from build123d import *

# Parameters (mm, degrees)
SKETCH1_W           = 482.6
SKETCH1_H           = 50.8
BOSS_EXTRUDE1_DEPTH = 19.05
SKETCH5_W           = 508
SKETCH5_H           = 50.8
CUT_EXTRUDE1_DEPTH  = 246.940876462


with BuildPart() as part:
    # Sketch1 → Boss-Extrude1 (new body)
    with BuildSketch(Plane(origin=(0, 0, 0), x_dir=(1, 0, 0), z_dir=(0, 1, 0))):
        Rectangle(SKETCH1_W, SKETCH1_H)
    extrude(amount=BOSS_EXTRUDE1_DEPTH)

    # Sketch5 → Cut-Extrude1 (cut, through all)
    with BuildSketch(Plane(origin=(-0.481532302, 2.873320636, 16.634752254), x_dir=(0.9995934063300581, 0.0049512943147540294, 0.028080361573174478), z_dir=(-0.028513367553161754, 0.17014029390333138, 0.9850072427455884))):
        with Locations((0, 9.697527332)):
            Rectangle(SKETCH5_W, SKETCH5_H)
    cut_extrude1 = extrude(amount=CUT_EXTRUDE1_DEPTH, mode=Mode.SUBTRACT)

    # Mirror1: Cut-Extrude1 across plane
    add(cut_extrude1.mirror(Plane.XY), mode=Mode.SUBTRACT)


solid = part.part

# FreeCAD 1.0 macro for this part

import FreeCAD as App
import Part
import Sketcher
Q = App.Units.Quantity


def add_polygon(sketch, points):
    """Adds a closed chain of lines whose ends are joined by coincident constraints."""
    first, n = sketch.GeometryCount, len(points)
    for a, b in zip(points, points[1:] + points[:1]):
        sketch.addGeometry(Part.LineSegment(App.Vector(*a, 0), App.Vector(*b, 0)), False)
    for i in range(n):
        sketch.addConstraint(Sketcher.Constraint("Coincident", first + i, 2, first + (i + 1) % n, 1))

doc = App.newDocument("Part")
body = doc.addObject("PartDesign::Body", "Body")

# Sketch on XZ plane
sketch1 = body.newObject("Sketcher::SketchObject", "Sketch")
sketch1.AttachmentSupport = (doc.getObject("XZ_Plane"), [""])
sketch1.MapMode = "FlatFace"
add_polygon(sketch1, [(-241, -25), (-241, 25), (241, 25), (241, -25)])  # lines 0-3
sketch1.addConstraint(Sketcher.Constraint("Vertical", 0))
sketch1.addConstraint(Sketcher.Constraint("Horizontal", 1))
sketch1.addConstraint(Sketcher.Constraint("Vertical", 2))
sketch1.addConstraint(Sketcher.Constraint("Horizontal", 3))
sketch1.addConstraint(Sketcher.Constraint("Symmetric", 0, 2, 2, 2, -1, 1))
sketch1.addConstraint(Sketcher.Constraint("DistanceX", 1, 1, 1, 2, Q("19 in")))
sketch1.addConstraint(Sketcher.Constraint("DistanceY", 0, 1, 0, 2, Q("2 in")))
pad1 = body.newObject("PartDesign::Pad", "Pad")
pad1.Profile = sketch1
pad1.Length = Q("0.75 in")
pad1.Reversed = True

# Sketch on an angled plane
sketch2 = body.newObject("Sketcher::SketchObject", "Sketch001")
sketch2.Placement = App.Placement(App.Vector(-0.481532, 2.873321, 16.634752), App.Rotation(App.Vector(0.999593406, 0.004951294, 0.028080362), App.Vector(-0.000099459, 0.985407411, -0.170212294), App.Vector(-0.028513368, 0.170140294, 0.985007243), "ZXY"))
add_polygon(sketch2, [(-254, 35), (-254, -16), (254, -16), (254, 35)])  # lines 0-3
sketch2.addConstraint(Sketcher.Constraint("Vertical", 0))
sketch2.addConstraint(Sketcher.Constraint("Horizontal", 1))
sketch2.addConstraint(Sketcher.Constraint("Vertical", 2))
sketch2.addConstraint(Sketcher.Constraint("Horizontal", 3))
sketch2.addConstraint(Sketcher.Constraint("DistanceX", 1, 1, 1, 2, Q("20 in")))
sketch2.addConstraint(Sketcher.Constraint("DistanceY", 0, 2, 0, 1, Q("2 in")))
sketch2.addConstraint(Sketcher.Constraint("DistanceX", 0, 2, -1, 1, Q("10 in")))
sketch2.addConstraint(Sketcher.Constraint("DistanceY", 0, 2, -1, 1, Q("15.702473 mm")))
pocket1 = body.newObject("PartDesign::Pocket", "Pocket")
pocket1.Profile = sketch2
pocket1.Type = "ThroughAll"
pocket1.Reversed = True
doc.recompute()

mirrored = body.newObject("PartDesign::Mirrored", "Mirrored")
mirrored.Originals = [pocket1]
mirrored.MirrorPlane = (doc.getObject("XY_Plane"), [""])
body.Tip = mirrored

doc.recompute()
